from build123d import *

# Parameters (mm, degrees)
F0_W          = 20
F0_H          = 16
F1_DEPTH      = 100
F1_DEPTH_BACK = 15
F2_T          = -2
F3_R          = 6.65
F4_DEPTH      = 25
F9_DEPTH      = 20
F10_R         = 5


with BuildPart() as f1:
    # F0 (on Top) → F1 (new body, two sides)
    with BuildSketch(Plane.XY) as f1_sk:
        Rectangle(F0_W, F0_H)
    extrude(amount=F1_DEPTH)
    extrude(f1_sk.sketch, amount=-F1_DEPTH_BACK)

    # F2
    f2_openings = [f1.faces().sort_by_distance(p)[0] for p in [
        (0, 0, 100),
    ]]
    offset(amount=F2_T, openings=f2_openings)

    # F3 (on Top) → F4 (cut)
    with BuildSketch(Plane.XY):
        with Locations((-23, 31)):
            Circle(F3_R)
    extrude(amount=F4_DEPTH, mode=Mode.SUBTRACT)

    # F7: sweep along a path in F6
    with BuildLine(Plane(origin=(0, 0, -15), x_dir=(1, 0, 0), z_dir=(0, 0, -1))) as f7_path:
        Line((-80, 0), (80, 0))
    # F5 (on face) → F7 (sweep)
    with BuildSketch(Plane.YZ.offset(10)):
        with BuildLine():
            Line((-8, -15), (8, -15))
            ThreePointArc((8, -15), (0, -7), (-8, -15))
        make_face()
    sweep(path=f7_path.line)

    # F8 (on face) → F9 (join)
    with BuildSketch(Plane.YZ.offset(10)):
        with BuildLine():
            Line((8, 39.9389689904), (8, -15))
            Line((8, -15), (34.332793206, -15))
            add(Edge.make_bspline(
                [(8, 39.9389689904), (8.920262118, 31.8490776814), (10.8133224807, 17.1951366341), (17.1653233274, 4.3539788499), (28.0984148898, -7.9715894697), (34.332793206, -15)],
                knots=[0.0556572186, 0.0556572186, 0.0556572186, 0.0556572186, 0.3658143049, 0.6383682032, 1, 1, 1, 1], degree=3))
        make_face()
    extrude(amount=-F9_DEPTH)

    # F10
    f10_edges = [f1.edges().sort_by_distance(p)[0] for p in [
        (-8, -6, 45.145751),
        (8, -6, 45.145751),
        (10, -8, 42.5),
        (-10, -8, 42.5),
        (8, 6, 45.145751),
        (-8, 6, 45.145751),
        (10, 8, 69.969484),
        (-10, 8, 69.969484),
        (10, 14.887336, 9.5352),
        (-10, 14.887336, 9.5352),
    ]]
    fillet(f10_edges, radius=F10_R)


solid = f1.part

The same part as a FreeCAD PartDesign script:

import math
import FreeCAD as App
import Part
import Sketcher

V = App.Vector
Q = App.Units.Quantity


def edges_at(feature, points):
    """Names of the edges that pass closest to the given points."""
    edges = feature.Shape.Edges
    near = lambda p: min(range(len(edges)), key=lambda i: edges[i].distToShape(Part.Vertex(*p))[0])
    return sorted({f"Edge{near(p) + 1}" for p in points})


def faces_at(feature, points):
    """Names of the faces that lie closest to the given points."""
    faces = feature.Shape.Faces
    near = lambda p: min(range(len(faces)), key=lambda i: faces[i].distToShape(Part.Vertex(*p))[0])
    return sorted({f"Face{near(p) + 1}" for p in points})


def add_polygon(sketch, points):
    """Adds a closed chain of lines whose ends are joined by coincident constraints."""
    first, n = sketch.GeometryCount, len(points)
    for a, b in zip(points, points[1:] + points[:1]):
        sketch.addGeometry(Part.LineSegment(App.Vector(*a, 0), App.Vector(*b, 0)), False)
    for i in range(n):
        sketch.addConstraint(Sketcher.Constraint("Coincident", first + i, 2, first + (i + 1) % n, 1))

doc = App.newDocument("Part")
params = doc.addObject("Spreadsheet::Sheet", "Params")
for row, (alias, value) in enumerate([
    ("sketch1_width", "20 mm"),
    ("sketch1_height", "16 mm"),
    ("pad1_length", "100 mm"),
    ("pad1_length2", "15 mm"),
    ("thickness_wall", "2 mm"),
    ("sketch2_diameter", "13.3 mm"),
    ("pocket1_length", "25 mm"),
    ("sketch3_radius", "8 mm"),
    ("sketch4_width", "160 mm"),
    ("pad2_length", "20 mm"),
    ("fillet_radius", "5 mm"),
], start=1):
    params.set(f"A{row}", alias)
    params.set(f"B{row}", "=" + value)
    params.setAlias(f"B{row}", alias)

body = doc.addObject("PartDesign::Body", "Body")

sketch1 = body.newObject("Sketcher::SketchObject", "Sketch")
sketch1.AttachmentSupport = (doc.getObject("XY_Plane"), [""])
sketch1.MapMode = "FlatFace"
add_polygon(sketch1, [(-10, 8), (-10, -8), (10, -8), (10, 8)])
sketch1.addConstraint(Sketcher.Constraint("Vertical", 0))
sketch1.addConstraint(Sketcher.Constraint("Horizontal", 1))
sketch1.addConstraint(Sketcher.Constraint("Vertical", 2))
sketch1.addConstraint(Sketcher.Constraint("Horizontal", 3))
sketch1.addConstraint(Sketcher.Constraint("Symmetric", 0, 2, 2, 2, -1, 1))
sketch1.addConstraint(Sketcher.Constraint("DistanceX", 1, 1, 1, 2, Q("20 mm")))
sketch1.addConstraint(Sketcher.Constraint("DistanceY", 0, 2, 0, 1, Q("16 mm")))
sketch1.setExpression("Constraints[9]", "Params.sketch1_width")
sketch1.setExpression("Constraints[10]", "Params.sketch1_height")
pad1 = body.newObject("PartDesign::Pad", "Pad")
pad1.Profile = sketch1
pad1.Type = "TwoLengths"
pad1.setExpression("Length", "Params.pad1_length")
pad1.setExpression("Length2", "Params.pad1_length2")
doc.recompute()

thickness = body.newObject("PartDesign::Thickness", "Thickness")
thickness.Base = (pad1, faces_at(pad1, [(0, 0, 100)]))
thickness.setExpression("Value", "Params.thickness_wall")
thickness.Reversed = True
thickness.Join = "Arc"

sketch2 = body.newObject("Sketcher::SketchObject", "Sketch001")
sketch2.AttachmentSupport = (doc.getObject("XY_Plane"), [""])
sketch2.MapMode = "FlatFace"
sketch2.addGeometry(Part.Circle(V(-23, 31, 0), V(0, 0, 1), 7), False)
sketch2.addConstraint(Sketcher.Constraint("Diameter", 0, Q("13.3 mm")))
sketch2.addConstraint(Sketcher.Constraint("DistanceX", 0, 3, -1, 1, Q("23 mm")))
sketch2.addConstraint(Sketcher.Constraint("DistanceY", -1, 1, 0, 3, Q("31 mm")))
sketch2.setExpression("Constraints[0]", "Params.sketch2_diameter")
pocket1 = body.newObject("PartDesign::Pocket", "Pocket")
pocket1.Profile = sketch2
pocket1.setExpression("Length", "Params.pocket1_length")
pocket1.Reversed = True

sketch3 = body.newObject("Sketcher::SketchObject", "Sketch002")
sketch3.AttachmentSupport = (doc.getObject("YZ_Plane"), [""])
sketch3.MapMode = "FlatFace"
sketch3.AttachmentOffset = App.Placement(V(0, 0, 10), App.Rotation())
sketch3.addGeometry(Part.LineSegment(V(-8, -15, 0), V(8, -15, 0)), False)
sketch3.addGeometry(Part.ArcOfCircle(Part.Circle(V(0, -15, 0), V(0, 0, 1), 8), math.radians(0), math.radians(180)), False)
sketch3.addConstraint(Sketcher.Constraint("Coincident", 0, 1, 1, 2))
sketch3.addConstraint(Sketcher.Constraint("Coincident", 1, 1, 0, 2))
sketch3.addConstraint(Sketcher.Constraint("Horizontal", 0))
sketch3.addConstraint(Sketcher.Constraint("PointOnObject", 1, 3, -2))
sketch3.addConstraint(Sketcher.Constraint("Horizontal", 1, 3, 0, 1))
sketch3.addConstraint(Sketcher.Constraint("Radius", 1, Q("8 mm")))
sketch3.addConstraint(Sketcher.Constraint("DistanceY", 1, 3, -1, 1, Q("15 mm")))
sketch3.setExpression("Constraints[5]", "Params.sketch3_radius")

sketch4 = body.newObject("Sketcher::SketchObject", "Sketch003")
sketch4.AttachmentSupport = (doc.getObject("XY_Plane"), [""])
sketch4.MapMode = "FlatFace"
sketch4.AttachmentOffset = App.Placement(V(0, 0, -15), App.Rotation())
sketch4.addGeometry(Part.LineSegment(V(-80, 0, 0), V(80, 0, 0)), False)
sketch4.addConstraint(Sketcher.Constraint("Horizontal", 0))
sketch4.addConstraint(Sketcher.Constraint("Symmetric", 0, 1, 0, 2, -1, 1))
sketch4.addConstraint(Sketcher.Constraint("DistanceX", 0, 1, 0, 2, Q("160 mm")))
sketch4.setExpression("Constraints[2]", "Params.sketch4_width")
doc.recompute()

additivepipe = body.newObject("PartDesign::AdditivePipe", "AdditivePipe")
additivepipe.Profile = sketch3
additivepipe.Spine = (sketch4, ["Edge1"])

sketch5 = body.newObject("Sketcher::SketchObject", "Sketch004")
sketch5.AttachmentSupport = (doc.getObject("YZ_Plane"), [""])
sketch5.MapMode = "FlatFace"
sketch5.AttachmentOffset = App.Placement(V(0, 0, 10), App.Rotation())
sketch5.addGeometry(Part.LineSegment(V(8, 39.938969, 0), V(8, -15, 0)), False)
sketch5.addGeometry(Part.LineSegment(V(8, -15, 0), V(34.332793, -15, 0)), False)
sketch5.addGeometry(Part.BSplineCurve([V(8, 39.938969, 0), V(8.920262, 31.849078, 0), V(10.813322, 17.195137, 0), V(17.165323, 4.353979, 0), V(28.098415, -7.971589, 0), V(34.332793, -15, 0)], [4, 1, 1, 4], [0.055657219, 0.365814305, 0.638368203, 1], False, 3, [1, 1, 1, 1, 1, 1], False), False)
sketch5.addConstraint(Sketcher.Constraint("Block", 2))
sketch5.addConstraint(Sketcher.Constraint("Coincident", 0, 2, 1, 1))
sketch5.addConstraint(Sketcher.Constraint("Coincident", 1, 2, 2, 2))
sketch5.addConstraint(Sketcher.Constraint("Coincident", 2, 1, 0, 1))
sketch5.addConstraint(Sketcher.Constraint("Vertical", 0))
sketch5.addConstraint(Sketcher.Constraint("Horizontal", 1))
pad2 = body.newObject("PartDesign::Pad", "Pad001")
pad2.Profile = sketch5
pad2.setExpression("Length", "Params.pad2_length")
pad2.Reversed = True
doc.recompute()

fillet = body.newObject("PartDesign::Fillet", "Fillet")
fillet.Base = (pad2, edges_at(pad2, [
    (-8, -6, 45.146),
    (8, -6, 45.146),
    (10, -8, 42.5),
    (-10, -8, 42.5),
    (8, 6, 45.146),
    (-8, 6, 45.146),
    (10, 8, 69.969),
    (-10, 8, 69.969),
    (10, 14.887, 9.535),
    (-10, 14.887, 9.535),
]))
fillet.setExpression("Radius", "Params.fillet_radius")

doc.recompute()
